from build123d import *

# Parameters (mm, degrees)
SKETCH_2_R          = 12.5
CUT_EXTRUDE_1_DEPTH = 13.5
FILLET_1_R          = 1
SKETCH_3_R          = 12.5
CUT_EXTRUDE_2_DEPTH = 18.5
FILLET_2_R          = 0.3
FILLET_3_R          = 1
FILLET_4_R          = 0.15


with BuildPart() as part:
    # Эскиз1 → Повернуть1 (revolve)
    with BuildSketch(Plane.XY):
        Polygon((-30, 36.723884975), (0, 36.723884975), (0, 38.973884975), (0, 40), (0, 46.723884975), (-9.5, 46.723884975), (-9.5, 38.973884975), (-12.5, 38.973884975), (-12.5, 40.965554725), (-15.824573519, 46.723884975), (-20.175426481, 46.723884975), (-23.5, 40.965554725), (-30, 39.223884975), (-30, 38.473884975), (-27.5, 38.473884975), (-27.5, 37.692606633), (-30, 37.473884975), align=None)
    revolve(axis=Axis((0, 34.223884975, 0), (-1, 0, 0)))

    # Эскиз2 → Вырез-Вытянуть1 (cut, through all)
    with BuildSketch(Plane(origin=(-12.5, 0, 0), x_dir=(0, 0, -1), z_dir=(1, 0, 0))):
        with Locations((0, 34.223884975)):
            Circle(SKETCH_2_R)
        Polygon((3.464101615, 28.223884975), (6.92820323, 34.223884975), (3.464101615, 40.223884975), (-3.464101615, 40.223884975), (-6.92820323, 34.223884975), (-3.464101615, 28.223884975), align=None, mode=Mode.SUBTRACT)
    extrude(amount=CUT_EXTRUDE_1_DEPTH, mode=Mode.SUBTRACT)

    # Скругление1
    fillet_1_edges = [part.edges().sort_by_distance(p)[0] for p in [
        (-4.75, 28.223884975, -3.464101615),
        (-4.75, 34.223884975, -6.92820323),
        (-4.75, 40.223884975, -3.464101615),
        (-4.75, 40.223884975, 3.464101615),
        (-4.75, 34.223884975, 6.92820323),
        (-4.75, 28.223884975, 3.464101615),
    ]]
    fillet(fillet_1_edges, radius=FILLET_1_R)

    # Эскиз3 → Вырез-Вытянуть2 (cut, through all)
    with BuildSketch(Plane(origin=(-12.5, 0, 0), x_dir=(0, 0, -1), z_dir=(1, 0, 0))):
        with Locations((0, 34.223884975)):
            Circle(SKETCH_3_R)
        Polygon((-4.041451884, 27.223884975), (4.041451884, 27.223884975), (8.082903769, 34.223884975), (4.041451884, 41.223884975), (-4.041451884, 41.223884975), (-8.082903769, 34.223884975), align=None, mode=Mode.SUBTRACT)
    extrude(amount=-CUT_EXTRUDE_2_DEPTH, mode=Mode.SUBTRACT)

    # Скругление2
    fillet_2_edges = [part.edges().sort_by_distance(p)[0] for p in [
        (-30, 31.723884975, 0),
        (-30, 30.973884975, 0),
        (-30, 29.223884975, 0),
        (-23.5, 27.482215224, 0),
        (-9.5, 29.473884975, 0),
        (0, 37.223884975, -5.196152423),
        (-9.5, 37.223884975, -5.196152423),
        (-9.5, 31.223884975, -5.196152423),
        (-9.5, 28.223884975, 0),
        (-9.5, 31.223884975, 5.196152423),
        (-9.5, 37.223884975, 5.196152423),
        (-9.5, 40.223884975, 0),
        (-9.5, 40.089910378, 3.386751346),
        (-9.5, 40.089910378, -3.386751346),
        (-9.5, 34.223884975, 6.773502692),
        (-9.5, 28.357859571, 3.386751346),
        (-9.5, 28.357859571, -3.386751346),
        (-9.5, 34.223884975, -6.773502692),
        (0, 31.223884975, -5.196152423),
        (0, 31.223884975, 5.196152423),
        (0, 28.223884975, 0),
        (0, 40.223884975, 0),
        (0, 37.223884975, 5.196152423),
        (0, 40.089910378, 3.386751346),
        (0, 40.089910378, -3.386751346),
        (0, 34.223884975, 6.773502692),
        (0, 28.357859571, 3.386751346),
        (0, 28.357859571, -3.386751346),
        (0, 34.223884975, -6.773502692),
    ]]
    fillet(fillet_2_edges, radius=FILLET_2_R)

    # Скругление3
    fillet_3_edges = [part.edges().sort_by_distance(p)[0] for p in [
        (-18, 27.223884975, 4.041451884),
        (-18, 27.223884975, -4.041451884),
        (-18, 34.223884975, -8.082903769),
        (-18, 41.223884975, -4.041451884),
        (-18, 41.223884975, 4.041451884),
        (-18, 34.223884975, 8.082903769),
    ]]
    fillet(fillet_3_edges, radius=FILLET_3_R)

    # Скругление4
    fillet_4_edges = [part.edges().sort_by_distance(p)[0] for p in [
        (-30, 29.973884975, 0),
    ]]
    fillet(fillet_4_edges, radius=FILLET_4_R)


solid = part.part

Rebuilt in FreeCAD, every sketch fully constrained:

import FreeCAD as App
import Part
import Sketcher

V = App.Vector
Q = App.Units.Quantity


def edges_at(feature, points):
    """Names of the edges that pass closest to the given points."""
    edges = feature.Shape.Edges
    near = lambda p: min(range(len(edges)), key=lambda i: edges[i].distToShape(Part.Vertex(*p))[0])
    return sorted({f"Edge{near(p) + 1}" for p in points})


def add_polygon(sketch, points):
    """Adds a closed chain of lines whose ends are joined by coincident constraints."""
    first, n = sketch.GeometryCount, len(points)
    for a, b in zip(points, points[1:] + points[:1]):
        sketch.addGeometry(Part.LineSegment(App.Vector(*a, 0), App.Vector(*b, 0)), False)
    for i in range(n):
        sketch.addConstraint(Sketcher.Constraint("Coincident", first + i, 2, first + (i + 1) % n, 1))

doc = App.newDocument("Part")
body = doc.addObject("PartDesign::Body", "Body")

# Sketch on XY plane
sketch1 = doc.addObject("Sketcher::SketchObject", "Sketch")
body.addObject(sketch1)
sketch1.AttachmentSupport = (doc.XY_Plane, [""])
sketch1.MapMode = "FlatFace"
add_polygon(sketch1, [(-30, 36.7), (0, 36.7), (0, 46.7), (-9.5, 46.7), (-9.5, 39), (-12.5, 39), (-12.5, 41), (-15.8, 46.7), (-20.2, 46.7), (-23.5, 41), (-30, 39.2), (-30, 38.5), (-27.5, 38.5), (-27.5, 37.7), (-30, 37.5)])  # lines 0-14
sketch1.addGeometry(Part.LineSegment(V(0, 34.2, 0), V(-30, 34.2, 0)), True)  # axis
sketch1.addConstraint(Sketcher.Constraint("Horizontal", 0))
sketch1.addConstraint(Sketcher.Constraint("Vertical", 1))
sketch1.addConstraint(Sketcher.Constraint("Horizontal", 2))
sketch1.addConstraint(Sketcher.Constraint("Vertical", 3))
sketch1.addConstraint(Sketcher.Constraint("Horizontal", 4))
sketch1.addConstraint(Sketcher.Constraint("Vertical", 5))
sketch1.addConstraint(Sketcher.Constraint("Horizontal", 7))
sketch1.addConstraint(Sketcher.Constraint("Vertical", 10))
sketch1.addConstraint(Sketcher.Constraint("Horizontal", 11))
sketch1.addConstraint(Sketcher.Constraint("Vertical", 12))
sketch1.addConstraint(Sketcher.Constraint("Vertical", 14))
sketch1.addConstraint(Sketcher.Constraint("Horizontal", 15))
sketch1.addConstraint(Sketcher.Constraint("PointOnObject", 0, 2, -2))
sketch1.addConstraint(Sketcher.Constraint("PointOnObject", 15, 1, -2))
sketch1.addConstraint(Sketcher.Constraint("Horizontal", 2, 2, 6, 2))
sketch1.addConstraint(Sketcher.Constraint("Horizontal", 5, 2, 8, 2))
sketch1.addConstraint(Sketcher.Constraint("Vertical", 10, 2, 13, 2))
sketch1.addConstraint(Sketcher.Constraint("Vertical", 14, 2, 15, 2))
sketch1.addConstraint(Sketcher.Constraint("Equal", 10, 14))
sketch1.addConstraint(Sketcher.Constraint("Equal", 6, 8))
sketch1.addConstraint(Sketcher.Constraint("DistanceX", 0, 1, 0, 2, 30.0))
sketch1.addConstraint(Sketcher.Constraint("DistanceX", 4, 2, 4, 1, 3.0))
sketch1.addConstraint(Sketcher.Constraint("DistanceY", 1, 1, 1, 2, 10.0))
sketch1.addConstraint(Sketcher.Constraint("Angle", 6, Q("120 deg")))
sketch1.addConstraint(Sketcher.Constraint("Angle", 9, Q("-165 deg")))
sketch1.addConstraint(Sketcher.Constraint("Angle", 13, Q("-175 deg")))
sketch1.addConstraint(Sketcher.Constraint("DistanceX", 2, 2, 2, 1, 9.5))
sketch1.addConstraint(Sketcher.Constraint("DistanceX", 11, 1, 11, 2, 2.5))
sketch1.addConstraint(Sketcher.Constraint("DistanceX", 8, 2, 5, 2, 11.0))
sketch1.addConstraint(Sketcher.Constraint("DistanceY", 13, 2, 10, 2, 1.0))
sketch1.addConstraint(Sketcher.Constraint("DistanceY", 3, 2, 3, 1, 7.75))
sketch1.addConstraint(Sketcher.Constraint("DistanceY", 10, 2, 10, 1, 0.75))
sketch1.addConstraint(Sketcher.Constraint("DistanceY", 15, 1, 0, 2, 2.5))
sketch1.addConstraint(Sketcher.Constraint("DistanceY", -1, 1, 0, 2, 36.723885))
revolution = doc.addObject("PartDesign::Revolution", "Revolution")
body.addObject(revolution)
revolution.Profile = sketch1
revolution.ReferenceAxis = (sketch1, ["Axis0"])
revolution.Angle = 360

# Sketch on YZ plane
sketch2 = doc.addObject("Sketcher::SketchObject", "Sketch001")
body.addObject(sketch2)
sketch2.AttachmentSupport = (doc.YZ_Plane, [""])
sketch2.MapMode = "FlatFace"
sketch2.AttachmentOffset = App.Placement(V(0, 0, -12.5), App.Rotation())
sketch2.addGeometry(Part.Circle(V(34, 0, 0), V(0, 0, 1), 12), False)  # 0
add_polygon(sketch2, [(34, -7), (28, -3), (28, 3), (34, 7), (40, 3), (40, -3)])  # lines 1-6
sketch2.addConstraint(Sketcher.Constraint("Vertical", 2))
sketch2.addConstraint(Sketcher.Constraint("Vertical", 5))
sketch2.addConstraint(Sketcher.Constraint("Symmetric", 3, 2, 6, 2, -1))
sketch2.addConstraint(Sketcher.Constraint("PointOnObject", 0, 3, -1))
sketch2.addConstraint(Sketcher.Constraint("Parallel", 1, 4))
sketch2.addConstraint(Sketcher.Constraint("Parallel", 3, 6))
sketch2.addConstraint(Sketcher.Constraint("Horizontal", 2, 2, 4, 2))
sketch2.addConstraint(Sketcher.Constraint("Horizontal", 1, 2, 5, 2))
sketch2.addConstraint(Sketcher.Constraint("Vertical", 0, 3, 3, 2))
sketch2.addConstraint(Sketcher.Constraint("Diameter", 0, 25.0))
sketch2.addConstraint(Sketcher.Constraint("Angle", 1, Q("150 deg")))
sketch2.addConstraint(Sketcher.Constraint("DistanceX", 1, 2, 0, 3, 6.0))
sketch2.addConstraint(Sketcher.Constraint("DistanceY", 1, 2, -1, 1, 3.464102))
sketch2.addConstraint(Sketcher.Constraint("DistanceX", -1, 1, 0, 3, 34.223885))
pocket1 = doc.addObject("PartDesign::Pocket", "Pocket")
body.addObject(pocket1)
pocket1.Profile = sketch2
pocket1.Type = "ThroughAll"
pocket1.Reversed = True
doc.recompute()

fillet = doc.addObject("PartDesign::Fillet", "Fillet")
body.addObject(fillet)
fillet.Base = (pocket1, edges_at(pocket1, [
    (-4.75, 28.224, -3.464),
    (-4.75, 34.224, -6.928),
    (-4.75, 40.224, -3.464),
    (-4.75, 40.224, 3.464),
    (-4.75, 34.224, 6.928),
    (-4.75, 28.224, 3.464),
]))
fillet.Radius = 1

# Sketch on YZ plane
sketch3 = doc.addObject("Sketcher::SketchObject", "Sketch002")
body.addObject(sketch3)
sketch3.AttachmentSupport = (doc.YZ_Plane, [""])
sketch3.MapMode = "FlatFace"
sketch3.AttachmentOffset = App.Placement(V(0, 0, -12.5), App.Rotation())
sketch3.addGeometry(Part.Circle(V(34, 0, 0), V(0, 0, 1), 12), False)  # 0
add_polygon(sketch3, [(27, -4), (27, 4), (34, 8), (41, 4), (41, -4), (34, -8)])  # lines 1-6
sketch3.addConstraint(Sketcher.Constraint("Vertical", 1))
sketch3.addConstraint(Sketcher.Constraint("Vertical", 4))
sketch3.addConstraint(Sketcher.Constraint("Symmetric", 2, 2, 5, 2, -1))
sketch3.addConstraint(Sketcher.Constraint("PointOnObject", 0, 3, -1))
sketch3.addConstraint(Sketcher.Constraint("Parallel", 2, 5))
sketch3.addConstraint(Sketcher.Constraint("Parallel", 3, 6))
sketch3.addConstraint(Sketcher.Constraint("Horizontal", 1, 2, 3, 2))
sketch3.addConstraint(Sketcher.Constraint("Horizontal", 4, 2, 6, 2))
sketch3.addConstraint(Sketcher.Constraint("Vertical", 0, 3, 2, 2))
sketch3.addConstraint(Sketcher.Constraint("Diameter", 0, 25.0))
sketch3.addConstraint(Sketcher.Constraint("Angle", 2, Q("30 deg")))
sketch3.addConstraint(Sketcher.Constraint("DistanceX", 1, 2, 0, 3, 7.0))
sketch3.addConstraint(Sketcher.Constraint("DistanceY", 1, 1, 1, 2, 8.082904))
sketch3.addConstraint(Sketcher.Constraint("DistanceX", -1, 1, 0, 3, 34.223885))
pocket2 = doc.addObject("PartDesign::Pocket", "Pocket001")
body.addObject(pocket2)
pocket2.Profile = sketch3
pocket2.Type = "ThroughAll"
doc.recompute()

fillet2 = doc.addObject("PartDesign::Fillet", "Fillet001")
body.addObject(fillet2)
fillet2.Base = (pocket2, edges_at(pocket2, [
    (-30, 31.724, 0),
    (-30, 30.974, 0),
    (-30, 29.224, 0),
    (-23.5, 27.482, 0),
    (-9.5, 29.474, 0),
    (0, 37.224, -5.196),
    (-9.5, 37.224, -5.196),
    (-9.5, 31.224, -5.196),
    (-9.5, 28.224, 0),
    (-9.5, 31.224, 5.196),
    (-9.5, 37.224, 5.196),
    (-9.5, 40.224, 0),
    (-9.5, 40.09, 3.387),
    (-9.5, 40.09, -3.387),
    (-9.5, 34.224, 6.774),
    (-9.5, 28.358, 3.387),
    (-9.5, 28.358, -3.387),
    (-9.5, 34.224, -6.774),
    (0, 31.224, -5.196),
    (0, 31.224, 5.196),
    (0, 28.224, 0),
    (0, 40.224, 0),
    (0, 37.224, 5.196),
    (0, 40.09, 3.387),
    (0, 40.09, -3.387),
    (0, 34.224, 6.774),
    (0, 28.358, 3.387),
    (0, 28.358, -3.387),
    (0, 34.224, -6.774),
]))
fillet2.Radius = 0.3
doc.recompute()

fillet3 = doc.addObject("PartDesign::Fillet", "Fillet002")
body.addObject(fillet3)
fillet3.Base = (fillet2, edges_at(fillet2, [
    (-18, 27.224, 4.041),
    (-18, 27.224, -4.041),
    (-18, 34.224, -8.083),
    (-18, 41.224, -4.041),
    (-18, 41.224, 4.041),
    (-18, 34.224, 8.083),
]))
fillet3.Radius = 1
doc.recompute()

fillet4 = doc.addObject("PartDesign::Fillet", "Fillet003")
body.addObject(fillet4)
fillet4.Base = (fillet3, edges_at(fillet3, [(-30, 29.974, 0)]))
fillet4.Radius = 0.15

doc.recompute()
